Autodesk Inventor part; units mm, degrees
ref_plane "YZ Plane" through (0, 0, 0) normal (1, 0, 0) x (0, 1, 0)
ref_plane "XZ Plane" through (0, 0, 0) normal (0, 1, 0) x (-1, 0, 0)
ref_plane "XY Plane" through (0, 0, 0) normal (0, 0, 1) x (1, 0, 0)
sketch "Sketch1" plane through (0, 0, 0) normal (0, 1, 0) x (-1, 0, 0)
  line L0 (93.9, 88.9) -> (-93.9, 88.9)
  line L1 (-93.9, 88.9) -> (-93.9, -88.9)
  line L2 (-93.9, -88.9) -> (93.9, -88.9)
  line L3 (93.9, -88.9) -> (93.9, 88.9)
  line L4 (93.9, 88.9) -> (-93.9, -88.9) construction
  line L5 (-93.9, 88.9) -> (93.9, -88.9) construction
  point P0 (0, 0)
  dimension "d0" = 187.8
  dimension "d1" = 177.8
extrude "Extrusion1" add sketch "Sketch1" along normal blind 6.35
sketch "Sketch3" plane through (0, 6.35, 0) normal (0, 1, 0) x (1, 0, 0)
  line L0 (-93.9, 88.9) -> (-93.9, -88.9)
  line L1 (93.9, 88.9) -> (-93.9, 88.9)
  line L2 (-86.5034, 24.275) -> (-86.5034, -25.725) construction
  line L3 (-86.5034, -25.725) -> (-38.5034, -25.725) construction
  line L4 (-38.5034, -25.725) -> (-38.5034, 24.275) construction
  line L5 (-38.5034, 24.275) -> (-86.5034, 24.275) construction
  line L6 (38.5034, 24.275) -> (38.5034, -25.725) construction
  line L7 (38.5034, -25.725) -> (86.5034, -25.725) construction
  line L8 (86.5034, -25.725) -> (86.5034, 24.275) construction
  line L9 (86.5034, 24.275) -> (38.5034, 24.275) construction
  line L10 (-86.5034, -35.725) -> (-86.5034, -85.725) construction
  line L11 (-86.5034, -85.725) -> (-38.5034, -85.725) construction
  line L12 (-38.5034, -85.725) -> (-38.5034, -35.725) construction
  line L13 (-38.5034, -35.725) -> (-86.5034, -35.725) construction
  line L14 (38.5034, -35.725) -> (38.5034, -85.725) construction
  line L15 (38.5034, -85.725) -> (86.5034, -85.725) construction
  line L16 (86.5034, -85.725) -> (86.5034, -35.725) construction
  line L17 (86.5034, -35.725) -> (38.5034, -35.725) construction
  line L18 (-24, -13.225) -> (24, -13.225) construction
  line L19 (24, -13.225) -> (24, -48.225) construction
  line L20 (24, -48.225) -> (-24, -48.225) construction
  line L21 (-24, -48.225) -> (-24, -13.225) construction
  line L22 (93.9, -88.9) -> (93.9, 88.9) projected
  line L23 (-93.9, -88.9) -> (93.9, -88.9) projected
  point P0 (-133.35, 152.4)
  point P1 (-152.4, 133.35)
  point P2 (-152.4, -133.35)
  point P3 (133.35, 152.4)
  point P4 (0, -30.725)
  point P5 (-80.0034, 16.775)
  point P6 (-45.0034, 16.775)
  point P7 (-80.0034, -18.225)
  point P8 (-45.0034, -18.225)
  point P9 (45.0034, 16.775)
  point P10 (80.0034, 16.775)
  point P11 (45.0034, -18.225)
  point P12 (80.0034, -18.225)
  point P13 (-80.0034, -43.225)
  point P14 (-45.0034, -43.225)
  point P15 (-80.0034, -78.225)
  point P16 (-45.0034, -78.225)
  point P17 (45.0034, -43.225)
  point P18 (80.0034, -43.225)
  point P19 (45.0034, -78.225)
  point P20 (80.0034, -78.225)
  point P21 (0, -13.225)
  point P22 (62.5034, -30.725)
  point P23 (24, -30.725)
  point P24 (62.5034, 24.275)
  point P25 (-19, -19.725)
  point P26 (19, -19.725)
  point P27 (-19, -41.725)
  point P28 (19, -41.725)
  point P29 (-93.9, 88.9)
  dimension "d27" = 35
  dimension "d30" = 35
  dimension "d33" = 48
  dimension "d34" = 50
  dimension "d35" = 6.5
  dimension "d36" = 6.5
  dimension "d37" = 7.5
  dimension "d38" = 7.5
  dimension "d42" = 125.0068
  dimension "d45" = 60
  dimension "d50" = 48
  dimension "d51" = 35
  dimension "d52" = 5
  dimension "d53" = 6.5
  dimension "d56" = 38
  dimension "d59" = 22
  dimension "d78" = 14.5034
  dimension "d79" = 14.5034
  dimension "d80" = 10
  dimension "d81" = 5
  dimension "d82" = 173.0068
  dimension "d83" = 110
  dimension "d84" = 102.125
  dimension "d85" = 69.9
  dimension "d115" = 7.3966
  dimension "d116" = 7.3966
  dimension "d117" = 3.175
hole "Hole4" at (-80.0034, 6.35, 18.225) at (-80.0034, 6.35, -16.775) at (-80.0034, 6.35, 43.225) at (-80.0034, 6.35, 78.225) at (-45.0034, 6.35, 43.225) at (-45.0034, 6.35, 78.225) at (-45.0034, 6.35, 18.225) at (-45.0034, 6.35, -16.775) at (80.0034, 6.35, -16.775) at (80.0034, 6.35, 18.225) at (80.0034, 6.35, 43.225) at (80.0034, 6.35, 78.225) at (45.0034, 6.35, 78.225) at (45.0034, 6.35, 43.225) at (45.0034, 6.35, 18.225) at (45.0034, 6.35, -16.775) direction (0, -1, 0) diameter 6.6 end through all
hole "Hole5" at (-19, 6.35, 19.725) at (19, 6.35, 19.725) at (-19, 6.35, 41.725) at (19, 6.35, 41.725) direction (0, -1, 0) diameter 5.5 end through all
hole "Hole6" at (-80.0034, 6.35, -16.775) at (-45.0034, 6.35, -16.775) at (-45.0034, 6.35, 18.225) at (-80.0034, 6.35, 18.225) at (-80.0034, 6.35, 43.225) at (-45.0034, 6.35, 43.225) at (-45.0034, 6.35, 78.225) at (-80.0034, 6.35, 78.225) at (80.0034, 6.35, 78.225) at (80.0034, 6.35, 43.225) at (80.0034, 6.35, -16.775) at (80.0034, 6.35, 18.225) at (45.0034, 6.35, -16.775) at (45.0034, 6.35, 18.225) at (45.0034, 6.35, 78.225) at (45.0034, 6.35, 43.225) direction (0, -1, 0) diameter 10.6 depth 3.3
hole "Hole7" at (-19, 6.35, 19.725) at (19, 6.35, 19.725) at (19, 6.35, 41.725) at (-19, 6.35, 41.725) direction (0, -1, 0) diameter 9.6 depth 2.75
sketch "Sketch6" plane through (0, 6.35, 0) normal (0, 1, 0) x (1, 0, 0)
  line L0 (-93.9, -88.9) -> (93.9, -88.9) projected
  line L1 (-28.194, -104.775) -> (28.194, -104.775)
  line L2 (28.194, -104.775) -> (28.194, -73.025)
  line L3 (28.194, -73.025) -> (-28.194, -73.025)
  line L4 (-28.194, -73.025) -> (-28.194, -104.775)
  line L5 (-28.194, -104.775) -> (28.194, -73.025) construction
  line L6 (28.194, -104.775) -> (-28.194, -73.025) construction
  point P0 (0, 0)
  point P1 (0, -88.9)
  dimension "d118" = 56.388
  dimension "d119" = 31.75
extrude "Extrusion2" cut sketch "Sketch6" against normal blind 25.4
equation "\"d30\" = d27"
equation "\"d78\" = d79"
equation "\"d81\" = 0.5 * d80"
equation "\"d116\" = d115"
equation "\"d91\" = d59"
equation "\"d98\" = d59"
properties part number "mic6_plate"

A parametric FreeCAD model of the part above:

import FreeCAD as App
import Part
import Sketcher
Q = App.Units.Quantity


def add_polygon(sketch, points):
    """Adds a closed chain of lines whose ends are joined by coincident constraints."""
    first, n = sketch.GeometryCount, len(points)
    for a, b in zip(points, points[1:] + points[:1]):
        sketch.addGeometry(Part.LineSegment(App.Vector(*a, 0), App.Vector(*b, 0)), False)
    for i in range(n):
        sketch.addConstraint(Sketcher.Constraint("Coincident", first + i, 2, first + (i + 1) % n, 1))

doc = App.newDocument("Part")
body = doc.addObject("PartDesign::Body", "Body")

# Sketch on XZ plane
sketch1 = body.newObject("Sketcher::SketchObject", "Sketch")
sketch1.AttachmentSupport = (doc.getObject("XZ_Plane"), [""])
sketch1.MapMode = "FlatFace"
add_polygon(sketch1, [(-93.9, -88.9), (-93.9, 88.9), (93.9, 88.9), (93.9, -88.9)])  # lines 0-3
sketch1.addConstraint([
    Sketcher.Constraint("Vertical", 0),
    Sketcher.Constraint("Horizontal", 1),
    Sketcher.Constraint("Vertical", 2),
    Sketcher.Constraint("Horizontal", 3),
    Sketcher.Constraint("Symmetric", 0, 2, 2, 2, -1, 1),
    Sketcher.Constraint("DistanceX", 1, 1, 1, 2, Q("187.8 mm")),
    Sketcher.Constraint("DistanceY", 0, 1, 0, 2, Q("177.8 mm")),
])
pad1 = body.newObject("PartDesign::Pad", "Pad")
pad1.Profile = sketch1
pad1.Length = 6.35
pad1.Reversed = True

# Sketch on XZ plane
sketch2 = body.newObject("Sketcher::SketchObject", "Sketch001")
sketch2.AttachmentSupport = (doc.getObject("XZ_Plane"), [""])
sketch2.MapMode = "FlatFace"
sketch2.AttachmentOffset = App.Placement(App.Vector(0, 0, -6.35), App.Rotation())
sketch2.addGeometry([
    Part.Circle(App.Vector(-80.0034, 18.225, 0), App.Vector(0, 0, 1), 3.3),  # 0
    Part.Circle(App.Vector(-80.0034, -16.775, 0), App.Vector(0, 0, 1), 3.3),  # 1
    Part.Circle(App.Vector(-80.0034, 43.225, 0), App.Vector(0, 0, 1), 3.3),  # 2
    Part.Circle(App.Vector(-80.0034, 78.225, 0), App.Vector(0, 0, 1), 3.3),  # 3
    Part.Circle(App.Vector(-45.0034, 43.225, 0), App.Vector(0, 0, 1), 3.3),  # 4
    Part.Circle(App.Vector(-45.0034, 78.225, 0), App.Vector(0, 0, 1), 3.3),  # 5
    Part.Circle(App.Vector(-45.0034, 18.225, 0), App.Vector(0, 0, 1), 3.3),  # 6
    Part.Circle(App.Vector(-45.0034, -16.775, 0), App.Vector(0, 0, 1), 3.3),  # 7
    Part.Circle(App.Vector(80.0034, -16.775, 0), App.Vector(0, 0, 1), 3.3),  # 8
    Part.Circle(App.Vector(80.0034, 18.225, 0), App.Vector(0, 0, 1), 3.3),  # 9
    Part.Circle(App.Vector(80.0034, 43.225, 0), App.Vector(0, 0, 1), 3.3),  # 10
    Part.Circle(App.Vector(80.0034, 78.225, 0), App.Vector(0, 0, 1), 3.3),  # 11
    Part.Circle(App.Vector(45.0034, 78.225, 0), App.Vector(0, 0, 1), 3.3),  # 12
    Part.Circle(App.Vector(45.0034, 43.225, 0), App.Vector(0, 0, 1), 3.3),  # 13
    Part.Circle(App.Vector(45.0034, 18.225, 0), App.Vector(0, 0, 1), 3.3),  # 14
    Part.Circle(App.Vector(45.0034, -16.775, 0), App.Vector(0, 0, 1), 3.3),  # 15
], False)
sketch2.addConstraint([
    Sketcher.Constraint("Equal", 0, 1),
    Sketcher.Constraint("Equal", 1, 2),
    Sketcher.Constraint("Equal", 2, 3),
    Sketcher.Constraint("Equal", 3, 4),
    Sketcher.Constraint("Equal", 4, 5),
    Sketcher.Constraint("Equal", 5, 6),
    Sketcher.Constraint("Equal", 6, 7),
    Sketcher.Constraint("Equal", 7, 8),
    Sketcher.Constraint("Equal", 8, 9),
    Sketcher.Constraint("Equal", 9, 10),
    Sketcher.Constraint("Equal", 10, 11),
    Sketcher.Constraint("Equal", 11, 12),
    Sketcher.Constraint("Equal", 12, 13),
    Sketcher.Constraint("Equal", 13, 14),
    Sketcher.Constraint("Equal", 14, 15),
    Sketcher.Constraint("Symmetric", 1, 3, 8, 3, -2),
    Sketcher.Constraint("Symmetric", 0, 3, 9, 3, -2),
    Sketcher.Constraint("Symmetric", 2, 3, 10, 3, -2),
    Sketcher.Constraint("Symmetric", 3, 3, 11, 3, -2),
    Sketcher.Constraint("Symmetric", 5, 3, 12, 3, -2),
    Sketcher.Constraint("Symmetric", 4, 3, 13, 3, -2),
    Sketcher.Constraint("Symmetric", 6, 3, 14, 3, -2),
    Sketcher.Constraint("Symmetric", 7, 3, 15, 3, -2),
    Sketcher.Constraint("Horizontal", 2, 3, 4, 3),
    Sketcher.Constraint("Horizontal", 3, 3, 5, 3),
    Sketcher.Constraint("Horizontal", 0, 3, 6, 3),
    Sketcher.Constraint("Horizontal", 1, 3, 7, 3),
    Sketcher.Constraint("Vertical", 0, 3, 1, 3),
    Sketcher.Constraint("Vertical", 1, 3, 2, 3),
    Sketcher.Constraint("Vertical", 2, 3, 3, 3),
    Sketcher.Constraint("Vertical", 4, 3, 5, 3),
    Sketcher.Constraint("Vertical", 5, 3, 6, 3),
    Sketcher.Constraint("Vertical", 6, 3, 7, 3),
    Sketcher.Constraint("Diameter", 0, Q("6.6 mm")),
    Sketcher.Constraint("DistanceY", 1, 3, 0, 3, Q("35 mm")),
    Sketcher.Constraint("DistanceY", 0, 3, 2, 3, Q("25 mm")),
    Sketcher.Constraint("DistanceY", 2, 3, 3, 3, Q("35 mm")),
    Sketcher.Constraint("DistanceX", 2, 3, 4, 3, Q("35 mm")),
    Sketcher.Constraint("DistanceY", -1, 1, 0, 3, Q("18.225 mm")),
    Sketcher.Constraint("DistanceX", 0, 3, -1, 1, Q("80.0034 mm")),
])
doc.recompute()
hole = body.newObject("PartDesign::Hole", "Hole")
hole.Profile = sketch2
hole.ThreadType = "None"
hole.Diameter = 6.6
hole.DepthType = "ThroughAll"
hole.Reversed = True

# Sketch on XZ plane
sketch3 = body.newObject("Sketcher::SketchObject", "Sketch002")
sketch3.AttachmentSupport = (doc.getObject("XZ_Plane"), [""])
sketch3.MapMode = "FlatFace"
sketch3.AttachmentOffset = App.Placement(App.Vector(0, 0, -6.35), App.Rotation())
sketch3.addGeometry([
    Part.Circle(App.Vector(-19, 19.725, 0), App.Vector(0, 0, 1), 2.75),
    Part.Circle(App.Vector(19, 19.725, 0), App.Vector(0, 0, 1), 2.75),
    Part.Circle(App.Vector(-19, 41.725, 0), App.Vector(0, 0, 1), 2.75),
    Part.Circle(App.Vector(19, 41.725, 0), App.Vector(0, 0, 1), 2.75),
], False)
sketch3.addConstraint([
    Sketcher.Constraint("Equal", 0, 1),
    Sketcher.Constraint("Equal", 1, 2),
    Sketcher.Constraint("Equal", 2, 3),
    Sketcher.Constraint("Symmetric", 0, 3, 1, 3, -2),
    Sketcher.Constraint("Symmetric", 2, 3, 3, 3, -2),
    Sketcher.Constraint("Vertical", 0, 3, 2, 3),
    Sketcher.Constraint("Diameter", 0, Q("5.5 mm")),
    Sketcher.Constraint("DistanceX", 0, 3, -1, 1, Q("19 mm")),
    Sketcher.Constraint("DistanceY", 0, 3, 2, 3, Q("22 mm")),
    Sketcher.Constraint("DistanceY", -1, 1, 0, 3, Q("19.725 mm")),
])
doc.recompute()
hole2 = body.newObject("PartDesign::Hole", "Hole001")
hole2.Profile = sketch3
hole2.ThreadType = "None"
hole2.Diameter = 5.5
hole2.DepthType = "ThroughAll"
hole2.Reversed = True

# Sketch on XZ plane
sketch4 = body.newObject("Sketcher::SketchObject", "Sketch003")
sketch4.AttachmentSupport = (doc.getObject("XZ_Plane"), [""])
sketch4.MapMode = "FlatFace"
sketch4.AttachmentOffset = App.Placement(App.Vector(0, 0, -6.35), App.Rotation())
sketch4.addGeometry([
    Part.Circle(App.Vector(-80.0034, -16.775, 0), App.Vector(0, 0, 1), 5.3),  # 0
    Part.Circle(App.Vector(-45.0034, -16.775, 0), App.Vector(0, 0, 1), 5.3),  # 1
    Part.Circle(App.Vector(-45.0034, 18.225, 0), App.Vector(0, 0, 1), 5.3),  # 2
    Part.Circle(App.Vector(-80.0034, 18.225, 0), App.Vector(0, 0, 1), 5.3),  # 3
    Part.Circle(App.Vector(-80.0034, 43.225, 0), App.Vector(0, 0, 1), 5.3),  # 4
    Part.Circle(App.Vector(-45.0034, 43.225, 0), App.Vector(0, 0, 1), 5.3),  # 5
    Part.Circle(App.Vector(-45.0034, 78.225, 0), App.Vector(0, 0, 1), 5.3),  # 6
    Part.Circle(App.Vector(-80.0034, 78.225, 0), App.Vector(0, 0, 1), 5.3),  # 7
    Part.Circle(App.Vector(80.0034, 78.225, 0), App.Vector(0, 0, 1), 5.3),  # 8
    Part.Circle(App.Vector(80.0034, 43.225, 0), App.Vector(0, 0, 1), 5.3),  # 9
    Part.Circle(App.Vector(80.0034, -16.775, 0), App.Vector(0, 0, 1), 5.3),  # 10
    Part.Circle(App.Vector(80.0034, 18.225, 0), App.Vector(0, 0, 1), 5.3),  # 11
    Part.Circle(App.Vector(45.0034, -16.775, 0), App.Vector(0, 0, 1), 5.3),  # 12
    Part.Circle(App.Vector(45.0034, 18.225, 0), App.Vector(0, 0, 1), 5.3),  # 13
    Part.Circle(App.Vector(45.0034, 78.225, 0), App.Vector(0, 0, 1), 5.3),  # 14
    Part.Circle(App.Vector(45.0034, 43.225, 0), App.Vector(0, 0, 1), 5.3),  # 15
], False)
sketch4.addConstraint([
    Sketcher.Constraint("Equal", 0, 1),
    Sketcher.Constraint("Equal", 1, 2),
    Sketcher.Constraint("Equal", 2, 3),
    Sketcher.Constraint("Equal", 3, 4),
    Sketcher.Constraint("Equal", 4, 5),
    Sketcher.Constraint("Equal", 5, 6),
    Sketcher.Constraint("Equal", 6, 7),
    Sketcher.Constraint("Equal", 7, 8),
    Sketcher.Constraint("Equal", 8, 9),
    Sketcher.Constraint("Equal", 9, 10),
    Sketcher.Constraint("Equal", 10, 11),
    Sketcher.Constraint("Equal", 11, 12),
    Sketcher.Constraint("Equal", 12, 13),
    Sketcher.Constraint("Equal", 13, 14),
    Sketcher.Constraint("Equal", 14, 15),
    Sketcher.Constraint("Symmetric", 7, 3, 8, 3, -2),
    Sketcher.Constraint("Symmetric", 4, 3, 9, 3, -2),
    Sketcher.Constraint("Symmetric", 0, 3, 10, 3, -2),
    Sketcher.Constraint("Symmetric", 3, 3, 11, 3, -2),
    Sketcher.Constraint("Symmetric", 1, 3, 12, 3, -2),
    Sketcher.Constraint("Symmetric", 2, 3, 13, 3, -2),
    Sketcher.Constraint("Symmetric", 6, 3, 14, 3, -2),
    Sketcher.Constraint("Symmetric", 5, 3, 15, 3, -2),
    Sketcher.Constraint("Horizontal", 0, 3, 1, 3),
    Sketcher.Constraint("Horizontal", 2, 3, 3, 3),
    Sketcher.Constraint("Horizontal", 4, 3, 5, 3),
    Sketcher.Constraint("Horizontal", 6, 3, 7, 3),
    Sketcher.Constraint("Vertical", 1, 3, 2, 3),
    Sketcher.Constraint("Vertical", 0, 3, 3, 3),
    Sketcher.Constraint("Vertical", 3, 3, 4, 3),
    Sketcher.Constraint("Vertical", 2, 3, 5, 3),
    Sketcher.Constraint("Vertical", 5, 3, 6, 3),
    Sketcher.Constraint("Vertical", 4, 3, 7, 3),
    Sketcher.Constraint("Diameter", 0, Q("10.6 mm")),
    Sketcher.Constraint("DistanceX", 0, 3, 1, 3, Q("35 mm")),
    Sketcher.Constraint("DistanceY", 1, 3, 2, 3, Q("35 mm")),
    Sketcher.Constraint("DistanceY", 3, 3, 4, 3, Q("25 mm")),
    Sketcher.Constraint("DistanceY", 5, 3, 6, 3, Q("35 mm")),
    Sketcher.Constraint("DistanceY", 0, 3, -1, 1, Q("16.775 mm")),
    Sketcher.Constraint("DistanceX", 0, 3, -1, 1, Q("80.0034 mm")),
])
doc.recompute()
hole3 = body.newObject("PartDesign::Hole", "Hole002")
hole3.Profile = sketch4
hole3.ThreadType = "None"
hole3.Diameter = 10.6
hole3.DepthType = "Dimension"
hole3.Depth = 3.3
hole3.DrillPoint = "Flat"
hole3.Reversed = True

# Sketch on XZ plane
sketch5 = body.newObject("Sketcher::SketchObject", "Sketch004")
sketch5.AttachmentSupport = (doc.getObject("XZ_Plane"), [""])
sketch5.MapMode = "FlatFace"
sketch5.AttachmentOffset = App.Placement(App.Vector(0, 0, -6.35), App.Rotation())
sketch5.addGeometry([
    Part.Circle(App.Vector(-19, 19.725, 0), App.Vector(0, 0, 1), 4.8),
    Part.Circle(App.Vector(19, 19.725, 0), App.Vector(0, 0, 1), 4.8),
    Part.Circle(App.Vector(19, 41.725, 0), App.Vector(0, 0, 1), 4.8),
    Part.Circle(App.Vector(-19, 41.725, 0), App.Vector(0, 0, 1), 4.8),
], False)
sketch5.addConstraint([
    Sketcher.Constraint("Equal", 0, 1),
    Sketcher.Constraint("Equal", 1, 2),
    Sketcher.Constraint("Equal", 2, 3),
    Sketcher.Constraint("Symmetric", 0, 3, 1, 3, -2),
    Sketcher.Constraint("Symmetric", 2, 3, 3, 3, -2),
    Sketcher.Constraint("Vertical", 1, 3, 2, 3),
    Sketcher.Constraint("Diameter", 0, Q("9.6 mm")),
    Sketcher.Constraint("DistanceX", 0, 3, -1, 1, Q("19 mm")),
    Sketcher.Constraint("DistanceY", 1, 3, 2, 3, Q("22 mm")),
    Sketcher.Constraint("DistanceY", -1, 1, 0, 3, Q("19.725 mm")),
])
doc.recompute()
hole4 = body.newObject("PartDesign::Hole", "Hole003")
hole4.Profile = sketch5
hole4.ThreadType = "None"
hole4.Diameter = 9.6
hole4.DepthType = "Dimension"
hole4.Depth = 2.75
hole4.DrillPoint = "Flat"
hole4.Reversed = True

# Sketch on XZ plane
sketch6 = body.newObject("Sketcher::SketchObject", "Sketch005")
sketch6.AttachmentSupport = (doc.getObject("XZ_Plane"), [""])
sketch6.MapMode = "FlatFace"
sketch6.AttachmentOffset = App.Placement(App.Vector(0, 0, -6.35), App.Rotation())
add_polygon(sketch6, [(-28.194, 73.025), (-28.194, 104.775), (28.194, 104.775), (28.194, 73.025)])  # lines 0-3
sketch6.addConstraint([
    Sketcher.Constraint("Vertical", 0),
    Sketcher.Constraint("Horizontal", 1),
    Sketcher.Constraint("Vertical", 2),
    Sketcher.Constraint("Horizontal", 3),
    Sketcher.Constraint("DistanceY", 0, 1, 0, 2, Q("31.75 mm")),
    Sketcher.Constraint("DistanceX", 1, 1, 1, 2, Q("56.388 mm")),
    Sketcher.Constraint("DistanceX", 0, 2, -1, 1, Q("28.194 mm")),
    Sketcher.Constraint("DistanceY", -1, 1, 0, 2, Q("104.775 mm")),
])
pocket1 = body.newObject("PartDesign::Pocket", "Pocket")
pocket1.Profile = sketch6
pocket1.Length = 25.4
pocket1.Reversed = True

doc.recompute()
